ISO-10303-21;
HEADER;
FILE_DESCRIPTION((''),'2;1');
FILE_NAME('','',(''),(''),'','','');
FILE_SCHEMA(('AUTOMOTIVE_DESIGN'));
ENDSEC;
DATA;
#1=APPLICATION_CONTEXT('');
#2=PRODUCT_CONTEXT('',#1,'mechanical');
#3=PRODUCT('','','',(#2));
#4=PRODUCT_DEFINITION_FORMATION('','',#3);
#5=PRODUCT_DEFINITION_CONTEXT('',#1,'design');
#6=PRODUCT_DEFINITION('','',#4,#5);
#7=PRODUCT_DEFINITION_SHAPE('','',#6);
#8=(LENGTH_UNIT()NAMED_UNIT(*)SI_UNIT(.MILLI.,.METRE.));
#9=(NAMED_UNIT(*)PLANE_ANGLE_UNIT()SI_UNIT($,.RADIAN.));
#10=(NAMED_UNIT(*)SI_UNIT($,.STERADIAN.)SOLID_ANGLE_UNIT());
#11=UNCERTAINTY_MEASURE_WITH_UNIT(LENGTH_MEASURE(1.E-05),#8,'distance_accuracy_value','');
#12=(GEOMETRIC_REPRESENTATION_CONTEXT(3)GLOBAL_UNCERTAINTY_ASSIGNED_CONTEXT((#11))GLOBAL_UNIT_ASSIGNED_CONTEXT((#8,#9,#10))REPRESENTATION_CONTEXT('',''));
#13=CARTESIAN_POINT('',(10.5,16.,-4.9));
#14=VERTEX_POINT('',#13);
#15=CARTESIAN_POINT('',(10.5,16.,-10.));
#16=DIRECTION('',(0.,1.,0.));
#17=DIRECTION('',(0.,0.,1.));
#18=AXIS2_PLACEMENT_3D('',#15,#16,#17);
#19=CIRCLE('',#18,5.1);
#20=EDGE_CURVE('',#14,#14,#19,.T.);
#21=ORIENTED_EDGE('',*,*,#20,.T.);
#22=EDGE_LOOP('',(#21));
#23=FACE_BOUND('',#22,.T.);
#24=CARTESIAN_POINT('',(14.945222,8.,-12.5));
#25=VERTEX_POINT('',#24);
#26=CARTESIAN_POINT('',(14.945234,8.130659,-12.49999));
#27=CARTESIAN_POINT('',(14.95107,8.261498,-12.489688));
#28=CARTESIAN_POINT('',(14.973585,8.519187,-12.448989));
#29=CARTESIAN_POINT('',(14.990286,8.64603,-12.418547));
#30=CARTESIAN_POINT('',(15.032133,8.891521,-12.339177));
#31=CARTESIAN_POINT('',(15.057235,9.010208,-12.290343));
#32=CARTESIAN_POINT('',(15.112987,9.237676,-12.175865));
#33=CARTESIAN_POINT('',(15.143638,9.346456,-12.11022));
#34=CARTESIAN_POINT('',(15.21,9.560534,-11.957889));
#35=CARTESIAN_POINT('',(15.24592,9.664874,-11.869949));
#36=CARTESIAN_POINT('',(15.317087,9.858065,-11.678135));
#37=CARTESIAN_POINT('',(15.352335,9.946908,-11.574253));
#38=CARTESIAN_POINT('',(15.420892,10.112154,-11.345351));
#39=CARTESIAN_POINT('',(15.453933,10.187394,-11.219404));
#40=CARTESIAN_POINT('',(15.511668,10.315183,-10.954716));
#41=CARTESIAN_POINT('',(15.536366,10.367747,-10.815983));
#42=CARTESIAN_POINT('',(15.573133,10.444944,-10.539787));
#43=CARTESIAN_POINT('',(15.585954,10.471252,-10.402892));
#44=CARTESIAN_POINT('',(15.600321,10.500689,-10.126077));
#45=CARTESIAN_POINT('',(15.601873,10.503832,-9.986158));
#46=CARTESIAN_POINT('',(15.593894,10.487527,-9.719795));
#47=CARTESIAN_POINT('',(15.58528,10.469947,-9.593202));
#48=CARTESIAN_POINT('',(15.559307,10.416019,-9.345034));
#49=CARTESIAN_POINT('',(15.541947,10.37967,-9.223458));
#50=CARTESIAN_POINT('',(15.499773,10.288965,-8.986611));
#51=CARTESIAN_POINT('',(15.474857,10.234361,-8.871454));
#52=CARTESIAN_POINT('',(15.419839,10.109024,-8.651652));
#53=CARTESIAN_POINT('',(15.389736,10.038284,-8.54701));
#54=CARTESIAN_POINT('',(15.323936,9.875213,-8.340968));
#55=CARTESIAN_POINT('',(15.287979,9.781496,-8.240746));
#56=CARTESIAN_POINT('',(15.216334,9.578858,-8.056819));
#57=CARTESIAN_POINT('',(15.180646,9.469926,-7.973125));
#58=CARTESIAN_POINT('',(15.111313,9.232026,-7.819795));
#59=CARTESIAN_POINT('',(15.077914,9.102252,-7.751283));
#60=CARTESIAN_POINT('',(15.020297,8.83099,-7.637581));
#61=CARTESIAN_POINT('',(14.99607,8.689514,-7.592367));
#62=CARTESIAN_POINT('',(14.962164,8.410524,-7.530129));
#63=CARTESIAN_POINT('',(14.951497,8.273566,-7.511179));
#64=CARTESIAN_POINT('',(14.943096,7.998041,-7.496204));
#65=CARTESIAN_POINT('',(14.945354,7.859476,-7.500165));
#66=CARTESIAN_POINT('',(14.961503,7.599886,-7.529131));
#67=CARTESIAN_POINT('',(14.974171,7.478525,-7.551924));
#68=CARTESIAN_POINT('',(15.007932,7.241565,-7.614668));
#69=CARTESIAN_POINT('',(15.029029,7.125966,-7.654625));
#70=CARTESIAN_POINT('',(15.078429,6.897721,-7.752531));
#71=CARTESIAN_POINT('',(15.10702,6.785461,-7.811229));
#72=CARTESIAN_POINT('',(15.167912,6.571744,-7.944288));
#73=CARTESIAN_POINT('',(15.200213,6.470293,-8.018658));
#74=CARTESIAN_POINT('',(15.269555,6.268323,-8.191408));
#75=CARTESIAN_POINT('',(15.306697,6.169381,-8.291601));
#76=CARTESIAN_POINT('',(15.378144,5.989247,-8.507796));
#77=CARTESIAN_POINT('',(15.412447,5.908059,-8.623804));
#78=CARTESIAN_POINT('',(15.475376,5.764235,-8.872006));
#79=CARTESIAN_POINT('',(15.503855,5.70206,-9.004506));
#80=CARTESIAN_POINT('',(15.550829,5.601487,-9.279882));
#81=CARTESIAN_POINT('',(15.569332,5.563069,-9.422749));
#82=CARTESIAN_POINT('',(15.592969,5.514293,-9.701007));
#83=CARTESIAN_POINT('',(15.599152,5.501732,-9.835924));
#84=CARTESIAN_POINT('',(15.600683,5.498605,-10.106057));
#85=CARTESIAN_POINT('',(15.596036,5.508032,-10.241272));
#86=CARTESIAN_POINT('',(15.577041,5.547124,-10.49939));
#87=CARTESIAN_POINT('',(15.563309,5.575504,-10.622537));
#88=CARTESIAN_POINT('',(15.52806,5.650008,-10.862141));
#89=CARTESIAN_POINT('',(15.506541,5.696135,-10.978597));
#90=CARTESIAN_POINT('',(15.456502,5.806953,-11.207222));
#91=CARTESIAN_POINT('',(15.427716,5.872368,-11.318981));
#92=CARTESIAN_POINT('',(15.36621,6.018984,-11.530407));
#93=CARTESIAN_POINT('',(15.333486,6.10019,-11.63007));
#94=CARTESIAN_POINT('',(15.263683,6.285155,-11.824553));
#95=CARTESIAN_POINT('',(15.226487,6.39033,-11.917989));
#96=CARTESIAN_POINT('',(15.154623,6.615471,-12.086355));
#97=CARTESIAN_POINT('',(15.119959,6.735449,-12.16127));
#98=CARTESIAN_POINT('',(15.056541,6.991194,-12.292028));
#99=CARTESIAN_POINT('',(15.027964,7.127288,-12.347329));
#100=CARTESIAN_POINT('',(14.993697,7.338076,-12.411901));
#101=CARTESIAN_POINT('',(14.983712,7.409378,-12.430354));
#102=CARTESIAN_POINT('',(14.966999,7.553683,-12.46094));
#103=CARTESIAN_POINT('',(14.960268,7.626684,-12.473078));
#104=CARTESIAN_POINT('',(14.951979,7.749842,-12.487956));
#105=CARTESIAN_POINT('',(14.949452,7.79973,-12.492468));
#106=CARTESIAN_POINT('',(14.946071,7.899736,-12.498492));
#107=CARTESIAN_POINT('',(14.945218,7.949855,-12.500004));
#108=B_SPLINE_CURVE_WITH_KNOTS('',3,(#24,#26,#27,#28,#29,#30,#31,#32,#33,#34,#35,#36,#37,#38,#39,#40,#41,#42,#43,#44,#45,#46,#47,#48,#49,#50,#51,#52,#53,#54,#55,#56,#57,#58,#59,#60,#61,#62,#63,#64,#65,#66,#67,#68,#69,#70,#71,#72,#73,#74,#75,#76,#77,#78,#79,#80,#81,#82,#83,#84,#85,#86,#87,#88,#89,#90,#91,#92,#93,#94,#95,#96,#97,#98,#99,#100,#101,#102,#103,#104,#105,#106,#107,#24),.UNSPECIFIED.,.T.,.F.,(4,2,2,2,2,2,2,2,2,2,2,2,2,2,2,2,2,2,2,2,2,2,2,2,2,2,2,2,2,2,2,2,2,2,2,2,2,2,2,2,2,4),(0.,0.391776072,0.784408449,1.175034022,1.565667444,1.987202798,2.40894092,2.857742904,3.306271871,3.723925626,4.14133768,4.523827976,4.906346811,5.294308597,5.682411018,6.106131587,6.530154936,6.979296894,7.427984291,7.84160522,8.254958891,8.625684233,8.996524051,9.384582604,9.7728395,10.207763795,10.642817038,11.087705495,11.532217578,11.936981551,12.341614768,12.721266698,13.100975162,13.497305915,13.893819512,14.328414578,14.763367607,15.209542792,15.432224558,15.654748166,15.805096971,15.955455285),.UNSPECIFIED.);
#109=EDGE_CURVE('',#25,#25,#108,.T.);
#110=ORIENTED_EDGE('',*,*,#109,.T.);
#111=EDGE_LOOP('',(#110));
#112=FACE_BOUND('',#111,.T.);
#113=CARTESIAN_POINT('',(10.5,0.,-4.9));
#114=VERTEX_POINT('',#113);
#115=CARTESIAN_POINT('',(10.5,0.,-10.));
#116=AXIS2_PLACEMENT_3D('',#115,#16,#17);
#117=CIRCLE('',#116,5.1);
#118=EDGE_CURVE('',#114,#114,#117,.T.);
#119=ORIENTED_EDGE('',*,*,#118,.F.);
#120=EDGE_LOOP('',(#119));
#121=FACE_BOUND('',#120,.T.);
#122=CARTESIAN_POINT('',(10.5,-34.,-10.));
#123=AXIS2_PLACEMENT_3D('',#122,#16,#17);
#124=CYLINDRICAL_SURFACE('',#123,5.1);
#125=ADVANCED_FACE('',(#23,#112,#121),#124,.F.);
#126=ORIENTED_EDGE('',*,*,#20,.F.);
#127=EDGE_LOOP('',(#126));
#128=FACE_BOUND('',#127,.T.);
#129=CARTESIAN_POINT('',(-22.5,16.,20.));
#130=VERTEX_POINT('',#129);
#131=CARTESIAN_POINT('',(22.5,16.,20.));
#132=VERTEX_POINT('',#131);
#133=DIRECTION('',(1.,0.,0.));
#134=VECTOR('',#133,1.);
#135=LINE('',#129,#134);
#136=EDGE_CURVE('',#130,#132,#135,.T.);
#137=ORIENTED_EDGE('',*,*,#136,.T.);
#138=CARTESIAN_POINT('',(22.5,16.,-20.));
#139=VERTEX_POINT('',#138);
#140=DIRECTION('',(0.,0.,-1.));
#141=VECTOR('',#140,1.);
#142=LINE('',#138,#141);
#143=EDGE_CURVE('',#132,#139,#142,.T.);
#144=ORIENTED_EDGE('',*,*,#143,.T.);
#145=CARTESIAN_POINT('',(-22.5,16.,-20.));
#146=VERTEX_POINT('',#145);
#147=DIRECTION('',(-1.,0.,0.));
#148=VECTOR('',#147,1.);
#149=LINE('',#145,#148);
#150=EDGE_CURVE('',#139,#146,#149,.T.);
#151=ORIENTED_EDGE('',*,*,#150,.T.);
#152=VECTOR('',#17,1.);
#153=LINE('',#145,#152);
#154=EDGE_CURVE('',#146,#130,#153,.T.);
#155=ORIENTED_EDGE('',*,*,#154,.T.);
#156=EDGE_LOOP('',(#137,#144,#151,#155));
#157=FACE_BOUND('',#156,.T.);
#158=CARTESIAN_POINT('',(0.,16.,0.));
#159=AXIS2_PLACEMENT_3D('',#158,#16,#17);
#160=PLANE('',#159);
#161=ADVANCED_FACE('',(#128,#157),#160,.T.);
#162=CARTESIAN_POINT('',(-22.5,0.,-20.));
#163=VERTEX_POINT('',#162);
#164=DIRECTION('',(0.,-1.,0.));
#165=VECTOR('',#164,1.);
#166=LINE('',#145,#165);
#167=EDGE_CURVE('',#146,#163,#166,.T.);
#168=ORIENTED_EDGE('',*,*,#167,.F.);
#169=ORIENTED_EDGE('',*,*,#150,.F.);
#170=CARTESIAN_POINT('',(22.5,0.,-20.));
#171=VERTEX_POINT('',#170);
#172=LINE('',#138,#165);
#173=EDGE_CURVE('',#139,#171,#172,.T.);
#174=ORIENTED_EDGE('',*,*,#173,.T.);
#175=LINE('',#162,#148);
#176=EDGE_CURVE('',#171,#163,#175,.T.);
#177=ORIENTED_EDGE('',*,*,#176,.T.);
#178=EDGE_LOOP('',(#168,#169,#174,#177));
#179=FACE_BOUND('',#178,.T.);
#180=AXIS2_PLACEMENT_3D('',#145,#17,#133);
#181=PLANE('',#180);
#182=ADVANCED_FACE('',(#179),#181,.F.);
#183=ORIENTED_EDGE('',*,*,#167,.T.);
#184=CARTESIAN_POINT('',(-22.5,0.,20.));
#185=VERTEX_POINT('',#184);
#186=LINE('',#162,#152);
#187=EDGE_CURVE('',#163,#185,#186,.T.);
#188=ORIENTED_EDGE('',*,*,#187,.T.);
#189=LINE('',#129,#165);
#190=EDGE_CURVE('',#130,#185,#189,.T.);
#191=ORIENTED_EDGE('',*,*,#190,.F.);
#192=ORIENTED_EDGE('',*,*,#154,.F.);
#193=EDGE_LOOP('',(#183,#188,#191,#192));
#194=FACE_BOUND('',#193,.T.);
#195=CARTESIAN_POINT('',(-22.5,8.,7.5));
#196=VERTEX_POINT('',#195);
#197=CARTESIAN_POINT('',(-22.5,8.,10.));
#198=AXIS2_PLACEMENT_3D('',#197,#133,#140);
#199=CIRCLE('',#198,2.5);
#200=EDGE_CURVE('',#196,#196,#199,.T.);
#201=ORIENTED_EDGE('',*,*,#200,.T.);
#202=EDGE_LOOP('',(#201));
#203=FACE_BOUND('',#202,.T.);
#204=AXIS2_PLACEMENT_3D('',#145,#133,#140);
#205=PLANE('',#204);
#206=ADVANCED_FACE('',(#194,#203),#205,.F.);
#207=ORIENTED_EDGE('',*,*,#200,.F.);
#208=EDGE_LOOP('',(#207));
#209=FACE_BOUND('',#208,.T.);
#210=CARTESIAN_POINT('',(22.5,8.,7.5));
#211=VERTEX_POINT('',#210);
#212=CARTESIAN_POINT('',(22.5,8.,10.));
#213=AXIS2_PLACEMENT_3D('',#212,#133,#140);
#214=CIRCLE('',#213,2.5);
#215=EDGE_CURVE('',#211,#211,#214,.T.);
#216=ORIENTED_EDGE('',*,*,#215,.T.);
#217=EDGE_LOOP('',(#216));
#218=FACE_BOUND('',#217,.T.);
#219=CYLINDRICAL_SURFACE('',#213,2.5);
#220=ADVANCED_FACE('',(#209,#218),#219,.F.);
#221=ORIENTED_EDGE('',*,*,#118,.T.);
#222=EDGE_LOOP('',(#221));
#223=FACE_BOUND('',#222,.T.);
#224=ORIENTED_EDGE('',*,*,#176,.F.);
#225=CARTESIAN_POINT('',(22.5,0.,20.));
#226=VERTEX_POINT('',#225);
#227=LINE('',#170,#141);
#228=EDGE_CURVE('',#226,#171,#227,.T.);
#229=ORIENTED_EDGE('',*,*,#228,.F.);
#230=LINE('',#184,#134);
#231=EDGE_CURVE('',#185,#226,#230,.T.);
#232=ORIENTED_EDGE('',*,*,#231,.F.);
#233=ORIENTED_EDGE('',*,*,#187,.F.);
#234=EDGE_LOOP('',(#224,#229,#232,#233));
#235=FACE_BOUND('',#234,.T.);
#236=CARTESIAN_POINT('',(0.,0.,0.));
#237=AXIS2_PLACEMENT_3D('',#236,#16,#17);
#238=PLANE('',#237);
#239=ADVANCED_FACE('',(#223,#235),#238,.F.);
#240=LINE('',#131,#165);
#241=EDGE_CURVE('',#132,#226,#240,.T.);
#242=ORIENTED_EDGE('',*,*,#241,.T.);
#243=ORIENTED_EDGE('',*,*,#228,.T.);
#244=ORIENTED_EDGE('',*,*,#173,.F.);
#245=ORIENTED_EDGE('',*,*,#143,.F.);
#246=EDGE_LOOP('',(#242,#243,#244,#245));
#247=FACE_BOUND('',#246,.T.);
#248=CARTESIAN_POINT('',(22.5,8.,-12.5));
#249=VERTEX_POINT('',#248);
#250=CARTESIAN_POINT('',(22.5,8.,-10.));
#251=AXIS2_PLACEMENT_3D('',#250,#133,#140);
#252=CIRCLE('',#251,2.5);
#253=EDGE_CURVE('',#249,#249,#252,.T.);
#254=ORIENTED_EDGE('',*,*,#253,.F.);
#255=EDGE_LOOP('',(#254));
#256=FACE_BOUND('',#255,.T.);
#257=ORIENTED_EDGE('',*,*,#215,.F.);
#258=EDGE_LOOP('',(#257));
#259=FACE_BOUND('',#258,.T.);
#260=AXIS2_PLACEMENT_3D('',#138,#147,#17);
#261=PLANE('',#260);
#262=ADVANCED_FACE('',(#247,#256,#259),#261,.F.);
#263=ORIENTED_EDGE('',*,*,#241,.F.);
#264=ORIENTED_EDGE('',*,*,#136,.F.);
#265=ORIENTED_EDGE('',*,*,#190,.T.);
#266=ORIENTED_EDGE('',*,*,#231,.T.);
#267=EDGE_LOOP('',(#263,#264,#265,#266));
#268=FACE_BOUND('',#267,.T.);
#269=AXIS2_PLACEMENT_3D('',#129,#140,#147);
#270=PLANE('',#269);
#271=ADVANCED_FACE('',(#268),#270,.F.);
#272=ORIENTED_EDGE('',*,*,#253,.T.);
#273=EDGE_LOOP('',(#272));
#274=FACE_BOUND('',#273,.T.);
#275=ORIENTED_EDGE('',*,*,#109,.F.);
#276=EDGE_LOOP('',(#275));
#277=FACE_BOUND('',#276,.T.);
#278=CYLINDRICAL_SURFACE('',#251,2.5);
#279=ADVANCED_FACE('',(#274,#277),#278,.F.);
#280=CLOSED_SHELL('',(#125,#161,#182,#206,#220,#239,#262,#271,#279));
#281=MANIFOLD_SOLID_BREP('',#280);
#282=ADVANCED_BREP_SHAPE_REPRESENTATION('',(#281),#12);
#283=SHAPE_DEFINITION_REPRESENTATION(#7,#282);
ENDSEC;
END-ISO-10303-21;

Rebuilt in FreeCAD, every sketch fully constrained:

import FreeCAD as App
import Part
import Sketcher

V = App.Vector
Q = App.Units.Quantity


def add_polygon(sketch, points):
    """Adds a closed chain of lines whose ends are joined by coincident constraints."""
    first, n = sketch.GeometryCount, len(points)
    for a, b in zip(points, points[1:] + points[:1]):
        sketch.addGeometry(Part.LineSegment(App.Vector(*a, 0), App.Vector(*b, 0)), False)
    for i in range(n):
        sketch.addConstraint(Sketcher.Constraint("Coincident", first + i, 2, first + (i + 1) % n, 1))

doc = App.newDocument("Part")
body = doc.addObject("PartDesign::Body", "Body")

# Sketch on XZ plane
sketch1 = body.newObject("Sketcher::SketchObject", "Sketch")
sketch1.AttachmentSupport = (doc.getObject("XZ_Plane"), [""])
sketch1.MapMode = "FlatFace"
add_polygon(sketch1, [(-22, -20), (-22, 20), (22, 20), (22, -20)])  # lines 0-3
sketch1.addConstraint(Sketcher.Constraint("Vertical", 0))
sketch1.addConstraint(Sketcher.Constraint("Horizontal", 1))
sketch1.addConstraint(Sketcher.Constraint("Vertical", 2))
sketch1.addConstraint(Sketcher.Constraint("Horizontal", 3))
sketch1.addConstraint(Sketcher.Constraint("Symmetric", 0, 2, 2, 2, -1, 1))
sketch1.addConstraint(Sketcher.Constraint("DistanceX", 1, 1, 1, 2, Q("45 mm")))
sketch1.addConstraint(Sketcher.Constraint("DistanceY", 0, 1, 0, 2, Q("40 mm")))
pad1 = body.newObject("PartDesign::Pad", "Pad")
pad1.Profile = sketch1
pad1.Length = 16
pad1.Reversed = True

# Sketch on YZ plane
sketch2 = body.newObject("Sketcher::SketchObject", "Sketch001")
sketch2.AttachmentSupport = (doc.getObject("YZ_Plane"), [""])
sketch2.MapMode = "FlatFace"
sketch2.AttachmentOffset = App.Placement(V(0, 0, 22.5), App.Rotation())
sketch2.addGeometry(Part.Circle(V(8, 10, 0), V(0, 0, 1), 2.5), False)
sketch2.addConstraint(Sketcher.Constraint("Diameter", 0, Q("5 mm")))
sketch2.addConstraint(Sketcher.Constraint("DistanceX", -1, 1, 0, 3, Q("8 mm")))
sketch2.addConstraint(Sketcher.Constraint("DistanceY", -1, 1, 0, 3, Q("10 mm")))
doc.recompute()
hole = body.newObject("PartDesign::Hole", "Hole")
hole.Profile = sketch2
hole.ThreadType = "None"
hole.Diameter = 5
hole.DepthType = "ThroughAll"

# Sketch on XZ plane
sketch3 = body.newObject("Sketcher::SketchObject", "Sketch002")
sketch3.AttachmentSupport = (doc.getObject("XZ_Plane"), [""])
sketch3.MapMode = "FlatFace"
sketch3.AttachmentOffset = App.Placement(V(0, 0, -16), App.Rotation())
sketch3.addGeometry(Part.Circle(V(10, -10, 0), V(0, 0, 1), 5), False)
sketch3.addConstraint(Sketcher.Constraint("Diameter", 0, Q("10.2 mm")))
sketch3.addConstraint(Sketcher.Constraint("DistanceY", 0, 3, -1, 1, Q("10 mm")))
sketch3.addConstraint(Sketcher.Constraint("DistanceX", -1, 1, 0, 3, Q("10.5 mm")))
pocket1 = body.newObject("PartDesign::Pocket", "Pocket")
pocket1.Profile = sketch3
pocket1.Length = 50
pocket1.Reversed = True

# Sketch on YZ plane
sketch4 = body.newObject("Sketcher::SketchObject", "Sketch003")
sketch4.AttachmentSupport = (doc.getObject("YZ_Plane"), [""])
sketch4.MapMode = "FlatFace"
sketch4.AttachmentOffset = App.Placement(V(0, 0, 22.5), App.Rotation())
sketch4.addGeometry(Part.Circle(V(8, -10, 0), V(0, 0, 1), 2.5), False)
sketch4.addConstraint(Sketcher.Constraint("Diameter", 0, Q("5 mm")))
sketch4.addConstraint(Sketcher.Constraint("DistanceX", -1, 1, 0, 3, Q("8 mm")))
sketch4.addConstraint(Sketcher.Constraint("DistanceY", 0, 3, -1, 1, Q("10 mm")))
doc.recompute()
hole2 = body.newObject("PartDesign::Hole", "Hole001")
hole2.Profile = sketch4
hole2.ThreadType = "None"
hole2.Diameter = 5
hole2.DepthType = "Dimension"
hole2.Depth = 10
hole2.DrillPoint = "Angled"
hole2.DrillPointAngle = 118

doc.recompute()
